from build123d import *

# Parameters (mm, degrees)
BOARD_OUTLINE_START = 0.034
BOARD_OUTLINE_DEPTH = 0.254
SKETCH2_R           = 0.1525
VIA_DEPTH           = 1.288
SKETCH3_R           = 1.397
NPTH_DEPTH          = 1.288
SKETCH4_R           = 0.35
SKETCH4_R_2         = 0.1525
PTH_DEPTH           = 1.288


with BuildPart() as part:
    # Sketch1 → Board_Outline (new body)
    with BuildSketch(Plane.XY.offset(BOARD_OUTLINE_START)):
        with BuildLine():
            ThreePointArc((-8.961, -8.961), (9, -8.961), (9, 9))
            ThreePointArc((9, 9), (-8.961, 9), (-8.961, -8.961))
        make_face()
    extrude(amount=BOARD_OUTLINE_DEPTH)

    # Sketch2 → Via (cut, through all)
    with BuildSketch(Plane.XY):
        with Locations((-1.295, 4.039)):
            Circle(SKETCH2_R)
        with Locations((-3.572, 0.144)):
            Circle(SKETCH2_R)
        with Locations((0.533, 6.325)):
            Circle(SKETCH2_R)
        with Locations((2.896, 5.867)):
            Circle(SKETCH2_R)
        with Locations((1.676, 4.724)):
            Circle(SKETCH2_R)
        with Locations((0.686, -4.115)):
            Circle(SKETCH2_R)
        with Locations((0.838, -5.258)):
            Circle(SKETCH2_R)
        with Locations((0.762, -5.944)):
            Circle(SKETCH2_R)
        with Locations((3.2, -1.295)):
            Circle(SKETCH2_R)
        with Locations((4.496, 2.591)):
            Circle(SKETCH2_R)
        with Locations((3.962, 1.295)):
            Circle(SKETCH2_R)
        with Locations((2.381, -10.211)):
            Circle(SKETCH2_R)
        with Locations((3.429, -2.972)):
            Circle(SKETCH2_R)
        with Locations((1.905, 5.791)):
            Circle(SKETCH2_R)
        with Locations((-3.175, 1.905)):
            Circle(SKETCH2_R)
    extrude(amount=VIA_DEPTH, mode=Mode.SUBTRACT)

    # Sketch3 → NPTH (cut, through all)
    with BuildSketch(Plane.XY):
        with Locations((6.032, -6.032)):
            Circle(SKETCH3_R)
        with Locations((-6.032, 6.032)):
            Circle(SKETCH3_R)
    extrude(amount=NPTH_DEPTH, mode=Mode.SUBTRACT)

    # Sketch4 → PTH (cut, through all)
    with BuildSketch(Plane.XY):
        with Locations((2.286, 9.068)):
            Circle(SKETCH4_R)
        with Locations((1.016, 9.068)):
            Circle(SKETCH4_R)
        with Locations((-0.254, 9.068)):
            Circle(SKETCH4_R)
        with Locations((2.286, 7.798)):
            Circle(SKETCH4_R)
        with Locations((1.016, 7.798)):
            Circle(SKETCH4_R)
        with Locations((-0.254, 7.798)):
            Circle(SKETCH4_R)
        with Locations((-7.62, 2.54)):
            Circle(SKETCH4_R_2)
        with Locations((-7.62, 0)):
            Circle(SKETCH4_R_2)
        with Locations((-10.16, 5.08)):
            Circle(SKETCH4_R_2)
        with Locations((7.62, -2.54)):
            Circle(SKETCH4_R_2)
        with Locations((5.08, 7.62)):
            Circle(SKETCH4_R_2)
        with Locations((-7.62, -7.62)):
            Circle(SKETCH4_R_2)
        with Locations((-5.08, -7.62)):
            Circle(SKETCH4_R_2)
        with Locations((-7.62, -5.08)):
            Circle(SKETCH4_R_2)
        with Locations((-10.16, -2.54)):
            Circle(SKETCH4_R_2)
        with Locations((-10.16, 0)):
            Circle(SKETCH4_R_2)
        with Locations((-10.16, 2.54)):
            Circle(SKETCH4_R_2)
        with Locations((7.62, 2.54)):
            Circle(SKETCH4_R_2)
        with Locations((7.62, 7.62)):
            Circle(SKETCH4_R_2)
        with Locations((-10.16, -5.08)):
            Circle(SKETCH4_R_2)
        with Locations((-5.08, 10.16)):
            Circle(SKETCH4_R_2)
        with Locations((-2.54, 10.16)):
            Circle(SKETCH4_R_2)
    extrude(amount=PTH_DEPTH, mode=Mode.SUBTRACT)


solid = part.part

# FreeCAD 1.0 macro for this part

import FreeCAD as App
import Part
import Sketcher

V = App.Vector
Q = App.Units.Quantity

doc = App.newDocument("Part")
body = doc.addObject("PartDesign::Body", "Body")

sketch1 = body.newObject("Sketcher::SketchObject", "Sketch")
sketch1.AttachmentSupport = (doc.getObject("XY_Plane"), [""])
sketch1.MapMode = "FlatFace"
sketch1.AttachmentOffset = App.Placement(V(0, 0, 0.034), App.Rotation())
sketch1.addGeometry(Part.Circle(V(0, 0, 0), V(0, 0, 1), 13), False)
sketch1.addConstraint([
    Sketcher.Constraint("Diameter", 0, Q("25.40069 mm")),
    Sketcher.Constraint("DistanceX", -1, 1, 0, 3, Q("0.0195 mm")),
    Sketcher.Constraint("DistanceY", -1, 1, 0, 3, Q("0.0195 mm")),
])
pad1 = body.newObject("PartDesign::Pad", "Pad")
pad1.Profile = sketch1
pad1.Length = Q("0.01 in")

sketch2 = body.newObject("Sketcher::SketchObject", "Sketch001")
sketch2.AttachmentSupport = (doc.getObject("XY_Plane"), [""])
sketch2.MapMode = "FlatFace"
sketch2.addGeometry([
    Part.Circle(V(-1.29, 4.04, 0), V(0, 0, 1), 0.15),
    Part.Circle(V(-3.57, 0.14, 0), V(0, 0, 1), 0.15),
    Part.Circle(V(0.53, 6.33, 0), V(0, 0, 1), 0.15),
    Part.Circle(V(2.9, 5.87, 0), V(0, 0, 1), 0.15),
    Part.Circle(V(1.68, 4.72, 0), V(0, 0, 1), 0.15),
    Part.Circle(V(0.69, -4.12, 0), V(0, 0, 1), 0.15),
    Part.Circle(V(0.84, -5.26, 0), V(0, 0, 1), 0.15),
    Part.Circle(V(0.76, -5.94, 0), V(0, 0, 1), 0.15),
    Part.Circle(V(3.2, -1.29, 0), V(0, 0, 1), 0.15),
    Part.Circle(V(4.5, 2.59, 0), V(0, 0, 1), 0.15),
    Part.Circle(V(3.96, 1.29, 0), V(0, 0, 1), 0.15),
    Part.Circle(V(2.38, -10.21, 0), V(0, 0, 1), 0.15),
    Part.Circle(V(3.43, -2.97, 0), V(0, 0, 1), 0.15),
    Part.Circle(V(1.91, 5.79, 0), V(0, 0, 1), 0.15),
    Part.Circle(V(-3.17, 1.91, 0), V(0, 0, 1), 0.15),
], False)
sketch2.addConstraint([
    Sketcher.Constraint("Equal", 0, 1),
    Sketcher.Constraint("Equal", 1, 2),
    Sketcher.Constraint("Equal", 2, 3),
    Sketcher.Constraint("Equal", 3, 4),
    Sketcher.Constraint("Equal", 4, 5),
    Sketcher.Constraint("Equal", 5, 6),
    Sketcher.Constraint("Equal", 6, 7),
    Sketcher.Constraint("Equal", 7, 8),
    Sketcher.Constraint("Equal", 8, 9),
    Sketcher.Constraint("Equal", 9, 10),
    Sketcher.Constraint("Equal", 10, 11),
    Sketcher.Constraint("Equal", 11, 12),
    Sketcher.Constraint("Equal", 12, 13),
    Sketcher.Constraint("Equal", 13, 14),
    Sketcher.Constraint("DistanceX", 14, 3, 13, 3, Q("0.2 in")),
    Sketcher.Constraint("Diameter", 0, Q("0.305 mm")),
    Sketcher.Constraint("DistanceX", -1, 1, 7, 3, Q("0.03 in")),
    Sketcher.Constraint("DistanceY", 0, 3, 2, 3, Q("0.09 in")),
    Sketcher.Constraint("DistanceY", 7, 3, 4, 3, Q("0.42 in")),
    Sketcher.Constraint("DistanceX", 4, 3, 8, 3, Q("0.06 in")),
    Sketcher.Constraint("DistanceX", 8, 3, 10, 3, Q("0.03 in")),
    Sketcher.Constraint("DistanceY", 10, 3, 3, 3, Q("0.18 in")),
    Sketcher.Constraint("DistanceY", 11, 3, 5, 3, Q("0.24 in")),
    Sketcher.Constraint("DistanceY", 6, 3, 12, 3, Q("0.09 in")),
    Sketcher.Constraint("DistanceX", -1, 1, 12, 3, Q("0.135 in")),
    Sketcher.Constraint("DistanceX", -1, 1, 13, 3, Q("0.075 in")),
    Sketcher.Constraint("DistanceY", -1, 1, 14, 3, Q("0.075 in")),
    Sketcher.Constraint("DistanceX", 0, 3, 3, 3, Q("0.165 in")),
    Sketcher.Constraint("DistanceY", 4, 3, 3, 3, Q("0.045 in")),
    Sketcher.Constraint("DistanceX", 2, 3, 4, 3, Q("0.045 in")),
    Sketcher.Constraint("DistanceY", 6, 3, 5, 3, Q("0.045 in")),
    Sketcher.Constraint("DistanceX", 0, 3, -1, 1, Q("1.295 mm")),
    Sketcher.Constraint("DistanceY", -1, 1, 0, 3, Q("4.039 mm")),
    Sketcher.Constraint("DistanceX", 1, 3, -1, 1, Q("3.572 mm")),
    Sketcher.Constraint("DistanceY", -1, 1, 1, 3, Q("0.144 mm")),
    Sketcher.Constraint("DistanceX", -1, 1, 2, 3, Q("0.533 mm")),
    Sketcher.Constraint("DistanceY", -1, 1, 3, 3, Q("5.867 mm")),
    Sketcher.Constraint("DistanceX", -1, 1, 5, 3, Q("0.686 mm")),
    Sketcher.Constraint("DistanceY", 5, 3, -1, 1, Q("4.115 mm")),
    Sketcher.Constraint("DistanceX", -1, 1, 6, 3, Q("0.838 mm")),
    Sketcher.Constraint("DistanceY", 8, 3, -1, 1, Q("1.295 mm")),
    Sketcher.Constraint("DistanceX", -1, 1, 9, 3, Q("4.496 mm")),
    Sketcher.Constraint("DistanceY", -1, 1, 9, 3, Q("2.591 mm")),
    Sketcher.Constraint("DistanceX", -1, 1, 11, 3, Q("2.381 mm")),
    Sketcher.Constraint("DistanceY", -1, 1, 13, 3, Q("5.791 mm")),
])
pocket1 = body.newObject("PartDesign::Pocket", "Pocket")
pocket1.Profile = sketch2
pocket1.Type = "ThroughAll"
pocket1.Reversed = True

sketch3 = body.newObject("Sketcher::SketchObject", "Sketch002")
sketch3.AttachmentSupport = (doc.getObject("XY_Plane"), [""])
sketch3.MapMode = "FlatFace"
sketch3.addGeometry([
    Part.Circle(V(6, -6, 0), V(0, 0, 1), 1.4),
    Part.Circle(V(-6, 6, 0), V(0, 0, 1), 1.4),
], False)
sketch3.addConstraint([
    Sketcher.Constraint("Equal", 0, 1),
    Sketcher.Constraint("Symmetric", 0, 3, 1, 3, -1, 1),
    Sketcher.Constraint("Diameter", 0, Q("0.11 in")),
    Sketcher.Constraint("DistanceX", -1, 1, 0, 3, Q("6.032 mm")),
    Sketcher.Constraint("DistanceY", 0, 3, -1, 1, Q("6.032 mm")),
])
pocket2 = body.newObject("PartDesign::Pocket", "Pocket001")
pocket2.Profile = sketch3
pocket2.Type = "ThroughAll"
pocket2.Reversed = True

sketch4 = body.newObject("Sketcher::SketchObject", "Sketch003")
sketch4.AttachmentSupport = (doc.getObject("XY_Plane"), [""])
sketch4.MapMode = "FlatFace"
sketch4.addGeometry([
    Part.Circle(V(2.29, 9.07, 0), V(0, 0, 1), 0.35),
    Part.Circle(V(1.02, 9.07, 0), V(0, 0, 1), 0.35),
    Part.Circle(V(-0.25, 9.07, 0), V(0, 0, 1), 0.35),
    Part.Circle(V(2.29, 7.8, 0), V(0, 0, 1), 0.35),
    Part.Circle(V(1.02, 7.8, 0), V(0, 0, 1), 0.35),
    Part.Circle(V(-0.25, 7.8, 0), V(0, 0, 1), 0.35),
    Part.Circle(V(-7.62, 2.54, 0), V(0, 0, 1), 0.15),
    Part.Circle(V(-7.62, 0, 0), V(0, 0, 1), 0.15),
    Part.Circle(V(-10.16, 5.08, 0), V(0, 0, 1), 0.15),
    Part.Circle(V(7.62, -2.54, 0), V(0, 0, 1), 0.15),
    Part.Circle(V(5.08, 7.62, 0), V(0, 0, 1), 0.15),
    Part.Circle(V(-7.62, -7.62, 0), V(0, 0, 1), 0.15),
    Part.Circle(V(-5.08, -7.62, 0), V(0, 0, 1), 0.15),
    Part.Circle(V(-7.62, -5.08, 0), V(0, 0, 1), 0.15),
    Part.Circle(V(-10.16, -2.54, 0), V(0, 0, 1), 0.15),
    Part.Circle(V(-10.16, 0, 0), V(0, 0, 1), 0.15),
    Part.Circle(V(-10.16, 2.54, 0), V(0, 0, 1), 0.15),
    Part.Circle(V(7.62, 2.54, 0), V(0, 0, 1), 0.15),
    Part.Circle(V(7.62, 7.62, 0), V(0, 0, 1), 0.15),
    Part.Circle(V(-10.16, -5.08, 0), V(0, 0, 1), 0.15),
    Part.Circle(V(-5.08, 10.16, 0), V(0, 0, 1), 0.15),
    Part.Circle(V(-2.54, 10.16, 0), V(0, 0, 1), 0.15),
], False)
sketch4.addConstraint([
    Sketcher.Constraint("Equal", 0, 1),
    Sketcher.Constraint("Equal", 1, 2),
    Sketcher.Constraint("Equal", 2, 3),
    Sketcher.Constraint("Equal", 3, 4),
    Sketcher.Constraint("Equal", 4, 5),
    Sketcher.Constraint("Equal", 6, 7),
    Sketcher.Constraint("Equal", 7, 8),
    Sketcher.Constraint("Equal", 8, 9),
    Sketcher.Constraint("Equal", 9, 10),
    Sketcher.Constraint("Equal", 10, 11),
    Sketcher.Constraint("Equal", 11, 12),
    Sketcher.Constraint("Equal", 12, 13),
    Sketcher.Constraint("Equal", 13, 14),
    Sketcher.Constraint("Equal", 14, 15),
    Sketcher.Constraint("Equal", 15, 16),
    Sketcher.Constraint("Equal", 16, 17),
    Sketcher.Constraint("Equal", 17, 18),
    Sketcher.Constraint("Equal", 18, 19),
    Sketcher.Constraint("Equal", 19, 20),
    Sketcher.Constraint("Equal", 20, 21),
    Sketcher.Constraint("Symmetric", 6, 3, 9, 3, -1, 1),
    Sketcher.Constraint("Symmetric", 10, 3, 12, 3, -1, 1),
    Sketcher.Constraint("Symmetric", 11, 3, 18, 3, -1, 1),
    Sketcher.Constraint("Symmetric", 6, 3, 17, 3, -2),
    Sketcher.Constraint("Symmetric", 14, 3, 16, 3, -1),
    Sketcher.Constraint("Symmetric", 8, 3, 19, 3, -1),
    Sketcher.Constraint("PointOnObject", 7, 3, -1),
    Sketcher.Constraint("PointOnObject", 15, 3, -1),
    Sketcher.Constraint("Horizontal", 0, 3, 1, 3),
    Sketcher.Constraint("Horizontal", 1, 3, 2, 3),
    Sketcher.Constraint("Horizontal", 3, 3, 4, 3),
    Sketcher.Constraint("Horizontal", 4, 3, 5, 3),
    Sketcher.Constraint("Horizontal", 11, 3, 12, 3),
    Sketcher.Constraint("Horizontal", 9, 3, 14, 3),
    Sketcher.Constraint("Horizontal", 13, 3, 19, 3),
    Sketcher.Constraint("Horizontal", 20, 3, 21, 3),
    Sketcher.Constraint("Vertical", 0, 3, 3, 3),
    Sketcher.Constraint("Vertical", 1, 3, 4, 3),
    Sketcher.Constraint("Vertical", 2, 3, 5, 3),
    Sketcher.Constraint("Vertical", 6, 3, 7, 3),
    Sketcher.Constraint("Vertical", 7, 3, 11, 3),
    Sketcher.Constraint("Vertical", 11, 3, 13, 3),
    Sketcher.Constraint("Vertical", 8, 3, 14, 3),
    Sketcher.Constraint("Vertical", 14, 3, 15, 3),
    Sketcher.Constraint("Vertical", 12, 3, 20, 3),
    Sketcher.Constraint("DistanceX", 6, 3, -1, 1, Q("0.3 in")),
    Sketcher.Constraint("DistanceY", -1, 1, 6, 3, Q("0.1 in")),
    Sketcher.Constraint("DistanceX", 8, 3, -1, 1, Q("0.4 in")),
    Sketcher.Constraint("DistanceY", -1, 1, 8, 3, Q("0.2 in")),
    Sketcher.Constraint("DistanceX", -1, 1, 10, 3, Q("0.2 in")),
    Sketcher.Constraint("DistanceY", -1, 1, 10, 3, Q("0.3 in")),
    Sketcher.Constraint("DistanceY", -1, 1, 20, 3, Q("0.4 in")),
    Sketcher.Constraint("DistanceX", 21, 3, -1, 1, Q("0.1 in")),
    Sketcher.Constraint("DistanceX", 2, 3, 0, 3, Q("0.1 in")),
    Sketcher.Constraint("Diameter", 0, Q("0.7 mm")),
    Sketcher.Constraint("Diameter", 6, Q("0.305 mm")),
    Sketcher.Constraint("DistanceX", -1, 1, 0, 3, Q("0.09 in")),
    Sketcher.Constraint("DistanceX", -1, 1, 1, 3, Q("0.04 in")),
    Sketcher.Constraint("DistanceY", 3, 3, 0, 3, Q("0.05 in")),
    Sketcher.Constraint("DistanceY", -1, 1, 0, 3, Q("9.068 mm")),
])
pocket3 = body.newObject("PartDesign::Pocket", "Pocket002")
pocket3.Profile = sketch4
pocket3.Type = "ThroughAll"
pocket3.Reversed = True

doc.recompute()
